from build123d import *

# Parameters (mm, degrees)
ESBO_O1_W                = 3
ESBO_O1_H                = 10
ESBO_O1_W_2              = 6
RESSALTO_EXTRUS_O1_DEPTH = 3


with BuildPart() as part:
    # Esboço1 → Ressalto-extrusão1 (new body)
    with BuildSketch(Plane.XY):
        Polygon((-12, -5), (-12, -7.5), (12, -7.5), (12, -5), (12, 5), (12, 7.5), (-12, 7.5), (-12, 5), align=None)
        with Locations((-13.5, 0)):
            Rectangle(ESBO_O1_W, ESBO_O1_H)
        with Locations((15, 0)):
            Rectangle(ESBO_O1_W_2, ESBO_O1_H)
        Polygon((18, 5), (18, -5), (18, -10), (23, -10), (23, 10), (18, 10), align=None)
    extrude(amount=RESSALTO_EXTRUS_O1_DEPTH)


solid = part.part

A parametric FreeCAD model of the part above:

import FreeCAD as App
import Part
import Sketcher

V = App.Vector
Q = App.Units.Quantity


def add_polygon(sketch, points):
    """Adds a closed chain of lines whose ends are joined by coincident constraints."""
    first, n = sketch.GeometryCount, len(points)
    for a, b in zip(points, points[1:] + points[:1]):
        sketch.addGeometry(Part.LineSegment(App.Vector(*a, 0), App.Vector(*b, 0)), False)
    for i in range(n):
        sketch.addConstraint(Sketcher.Constraint("Coincident", first + i, 2, first + (i + 1) % n, 1))

doc = App.newDocument("Part")
body = doc.addObject("PartDesign::Body", "Body")

sketch1 = body.newObject("Sketcher::SketchObject", "Sketch")
sketch1.AttachmentSupport = (doc.getObject("XY_Plane"), [""])
sketch1.MapMode = "FlatFace"
add_polygon(sketch1, [(-12, -7.5), (12, -7.5), (12, -5), (18, -5), (18, -10), (23, -10), (23, 10), (18, 10), (18, 5), (12, 5), (12, 7.5), (-12, 7.5), (-12, 5), (-15, 5), (-15, -5), (-12, -5)])
sketch1.addConstraint([
    Sketcher.Constraint("Horizontal", 0),
    Sketcher.Constraint("Vertical", 1),
    Sketcher.Constraint("Horizontal", 2),
    Sketcher.Constraint("Vertical", 3),
    Sketcher.Constraint("Horizontal", 4),
    Sketcher.Constraint("Vertical", 5),
    Sketcher.Constraint("Horizontal", 6),
    Sketcher.Constraint("Vertical", 7),
    Sketcher.Constraint("Horizontal", 8),
    Sketcher.Constraint("Vertical", 9),
    Sketcher.Constraint("Horizontal", 10),
    Sketcher.Constraint("Vertical", 11),
    Sketcher.Constraint("Horizontal", 12),
    Sketcher.Constraint("Vertical", 13),
    Sketcher.Constraint("Horizontal", 14),
    Sketcher.Constraint("Vertical", 15),
    Sketcher.Constraint("Symmetric", 0, 2, 10, 2, -1, 1),
    Sketcher.Constraint("Symmetric", 8, 2, 14, 2, -1, 1),
    Sketcher.Constraint("Symmetric", 8, 2, 11, 2, -2),
    Sketcher.Constraint("Symmetric", 3, 2, 6, 2, -1),
    Sketcher.Constraint("Horizontal", 2, 2, 13, 2),
    Sketcher.Constraint("Equal", 6, 3),
    Sketcher.Constraint("DistanceX", 0, 1, 0, 2, Q("24 mm")),
    Sketcher.Constraint("DistanceX", 2, 1, 2, 2, Q("6 mm")),
    Sketcher.Constraint("DistanceX", 4, 1, 4, 2, Q("5 mm")),
    Sketcher.Constraint("DistanceX", 12, 2, 12, 1, Q("3 mm")),
    Sketcher.Constraint("DistanceY", 5, 1, 5, 2, Q("20 mm")),
    Sketcher.Constraint("DistanceY", 1, 1, 1, 2, Q("2.5 mm")),
])
pad1 = body.newObject("PartDesign::Pad", "Pad")
pad1.Profile = sketch1
pad1.Length = 3

doc.recompute()
